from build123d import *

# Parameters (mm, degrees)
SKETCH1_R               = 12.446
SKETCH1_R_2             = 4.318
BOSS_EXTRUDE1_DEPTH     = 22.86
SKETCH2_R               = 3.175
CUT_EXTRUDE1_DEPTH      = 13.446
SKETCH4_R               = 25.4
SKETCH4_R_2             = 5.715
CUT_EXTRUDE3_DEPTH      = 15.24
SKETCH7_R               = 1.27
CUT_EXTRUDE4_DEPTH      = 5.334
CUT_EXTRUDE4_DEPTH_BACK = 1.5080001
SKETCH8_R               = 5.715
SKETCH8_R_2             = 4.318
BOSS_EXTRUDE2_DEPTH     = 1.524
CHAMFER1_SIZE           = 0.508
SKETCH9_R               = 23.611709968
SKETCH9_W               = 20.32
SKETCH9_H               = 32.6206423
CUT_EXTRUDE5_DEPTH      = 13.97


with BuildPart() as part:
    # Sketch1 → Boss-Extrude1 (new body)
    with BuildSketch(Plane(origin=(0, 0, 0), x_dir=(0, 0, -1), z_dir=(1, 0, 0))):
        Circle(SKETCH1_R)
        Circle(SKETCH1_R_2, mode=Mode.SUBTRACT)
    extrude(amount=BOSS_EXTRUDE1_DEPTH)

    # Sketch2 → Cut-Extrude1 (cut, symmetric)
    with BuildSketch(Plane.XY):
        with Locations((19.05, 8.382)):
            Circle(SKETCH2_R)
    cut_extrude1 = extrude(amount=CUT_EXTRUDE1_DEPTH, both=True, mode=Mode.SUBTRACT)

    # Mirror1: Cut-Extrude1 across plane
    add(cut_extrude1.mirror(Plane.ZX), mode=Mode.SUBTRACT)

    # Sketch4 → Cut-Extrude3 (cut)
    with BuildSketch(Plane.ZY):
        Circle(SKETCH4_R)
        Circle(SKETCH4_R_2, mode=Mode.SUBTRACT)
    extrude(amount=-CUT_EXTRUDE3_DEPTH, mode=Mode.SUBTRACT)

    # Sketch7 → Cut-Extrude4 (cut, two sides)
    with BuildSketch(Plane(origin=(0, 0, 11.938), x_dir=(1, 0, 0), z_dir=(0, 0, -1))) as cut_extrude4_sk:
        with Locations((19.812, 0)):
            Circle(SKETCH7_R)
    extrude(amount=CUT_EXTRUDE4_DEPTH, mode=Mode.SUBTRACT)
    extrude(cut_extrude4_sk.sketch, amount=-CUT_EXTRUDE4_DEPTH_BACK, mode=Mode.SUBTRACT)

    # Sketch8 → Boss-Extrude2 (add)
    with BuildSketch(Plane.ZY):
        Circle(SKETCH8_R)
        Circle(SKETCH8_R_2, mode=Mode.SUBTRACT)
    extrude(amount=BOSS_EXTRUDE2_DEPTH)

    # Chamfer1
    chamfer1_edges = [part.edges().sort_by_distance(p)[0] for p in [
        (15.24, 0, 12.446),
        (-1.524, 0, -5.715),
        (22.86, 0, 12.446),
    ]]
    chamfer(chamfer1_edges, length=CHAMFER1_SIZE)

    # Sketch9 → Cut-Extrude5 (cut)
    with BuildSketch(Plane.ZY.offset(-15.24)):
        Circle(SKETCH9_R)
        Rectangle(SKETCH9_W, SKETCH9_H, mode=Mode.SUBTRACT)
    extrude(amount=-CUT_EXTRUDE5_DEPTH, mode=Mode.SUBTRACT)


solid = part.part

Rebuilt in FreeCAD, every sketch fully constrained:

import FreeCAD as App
import Part
import Sketcher

V = App.Vector
Q = App.Units.Quantity


def edges_at(feature, points):
    """Names of the edges that pass closest to the given points."""
    edges = feature.Shape.Edges
    near = lambda p: min(range(len(edges)), key=lambda i: edges[i].distToShape(Part.Vertex(*p))[0])
    return sorted({f"Edge{near(p) + 1}" for p in points})

doc = App.newDocument("Part")
body = doc.addObject("PartDesign::Body", "Body")

sketch1 = doc.addObject("Sketcher::SketchObject", "Sketch")
body.addObject(sketch1)
sketch1.AttachmentSupport = (doc.YZ_Plane, [""])
sketch1.MapMode = "FlatFace"
sketch1.addGeometry([
    Part.Circle(V(0, 0, 0), V(0, 0, 1), 12.4),
    Part.Circle(V(0, 0, 0), V(0, 0, 1), 4.3),
], False)
sketch1.addConstraint([
    Sketcher.Constraint("Coincident", 0, 3, -1, 1),
    Sketcher.Constraint("Coincident", 1, 3, -1, 1),
    Sketcher.Constraint("Diameter", 0, Q("0.98 in")),
    Sketcher.Constraint("Diameter", 1, Q("0.34 in")),
])
pad1 = doc.addObject("PartDesign::Pad", "Pad")
body.addObject(pad1)
pad1.Profile = sketch1
pad1.Length = Q("0.9 in")

sketch2 = doc.addObject("Sketcher::SketchObject", "Sketch001")
body.addObject(sketch2)
sketch2.AttachmentSupport = (doc.XY_Plane, [""])
sketch2.MapMode = "FlatFace"
sketch2.addGeometry(Part.Circle(V(19.1, 8.4, 0), V(0, 0, 1), 3.2), False)
sketch2.addConstraint([
    Sketcher.Constraint("Diameter", 0, Q("0.25 in")),
    Sketcher.Constraint("DistanceX", -1, 1, 0, 3, Q("0.75 in")),
    Sketcher.Constraint("DistanceY", -1, 1, 0, 3, Q("0.33 in")),
])
pocket1 = doc.addObject("PartDesign::Pocket", "Pocket")
body.addObject(pocket1)
pocket1.Profile = sketch2
pocket1.Length = 26.892
pocket1.Midplane = True
doc.recompute()

mirrored = doc.addObject("PartDesign::Mirrored", "Mirrored")
body.addObject(mirrored)
mirrored.Originals = [pocket1]
mirrored.MirrorPlane = (doc.XZ_Plane, [""])
body.Tip = mirrored

sketch3 = doc.addObject("Sketcher::SketchObject", "Sketch002")
body.addObject(sketch3)
sketch3.AttachmentSupport = (doc.YZ_Plane, [""])
sketch3.MapMode = "FlatFace"
sketch3.addGeometry([
    Part.Circle(V(0, 0, 0), V(0, 0, 1), 25),
    Part.Circle(V(0, 0, 0), V(0, 0, 1), 6),
], False)
sketch3.addConstraint([
    Sketcher.Constraint("Coincident", 0, 3, -1, 1),
    Sketcher.Constraint("Coincident", 1, 3, -1, 1),
    Sketcher.Constraint("Diameter", 0, Q("2 in")),
    Sketcher.Constraint("Diameter", 1, Q("0.45 in")),
])
pocket2 = doc.addObject("PartDesign::Pocket", "Pocket001")
body.addObject(pocket2)
pocket2.Profile = sketch3
pocket2.Length = Q("0.6 in")
pocket2.Reversed = True

sketch4 = doc.addObject("Sketcher::SketchObject", "Sketch003")
body.addObject(sketch4)
sketch4.AttachmentSupport = (doc.XY_Plane, [""])
sketch4.MapMode = "FlatFace"
sketch4.AttachmentOffset = App.Placement(V(0, 0, 0.47 * 25.4), App.Rotation())
sketch4.addGeometry(Part.Circle(V(19.8, 0, 0), V(0, 0, 1), 1.3), False)
sketch4.addConstraint([
    Sketcher.Constraint("PointOnObject", 0, 3, -1),
    Sketcher.Constraint("Diameter", 0, Q("0.1 in")),
    Sketcher.Constraint("DistanceX", -1, 1, 0, 3, Q("0.78 in")),
])
pocket3 = doc.addObject("PartDesign::Pocket", "Pocket002")
body.addObject(pocket3)
pocket3.Profile = sketch4
pocket3.Type = "TwoLengths"
pocket3.Length = Q("0.21 in")
pocket3.Length2 = 1.508

sketch5 = doc.addObject("Sketcher::SketchObject", "Sketch004")
body.addObject(sketch5)
sketch5.AttachmentSupport = (doc.YZ_Plane, [""])
sketch5.MapMode = "FlatFace"
sketch5.addGeometry([
    Part.Circle(V(0, 0, 0), V(0, 0, 1), 5.7),
    Part.Circle(V(0, 0, 0), V(0, 0, 1), 4.3),
], False)
sketch5.addConstraint([
    Sketcher.Constraint("Coincident", 0, 3, -1, 1),
    Sketcher.Constraint("Coincident", 1, 3, -1, 1),
    Sketcher.Constraint("Diameter", 0, Q("0.45 in")),
    Sketcher.Constraint("Diameter", 1, Q("0.34 in")),
])
pad2 = doc.addObject("PartDesign::Pad", "Pad001")
body.addObject(pad2)
pad2.Profile = sketch5
pad2.Length = Q("0.06 in")
pad2.Reversed = True
doc.recompute()

chamfer = doc.addObject("PartDesign::Chamfer", "Chamfer")
body.addObject(chamfer)
chamfer.Base = (pad2, edges_at(pad2, [(15.24, 0, 12.446), (-1.524, 0, -5.715), (22.86, 0, 12.446)]))
chamfer.Size = Q("0.02 in")

sketch6 = doc.addObject("Sketcher::SketchObject", "Sketch005")
body.addObject(sketch6)
sketch6.AttachmentSupport = (doc.YZ_Plane, [""])
sketch6.MapMode = "FlatFace"
sketch6.AttachmentOffset = App.Placement(V(0, 0, 0.6 * 25.4), App.Rotation())
sketch6.addGeometry([
    Part.Circle(V(0, 0, 0), V(0, 0, 1), 24),
    Part.LineSegment(V(-16, 10, 0), V(-16, -10, 0)),
    Part.LineSegment(V(-16, -10, 0), V(16, -10, 0)),
    Part.LineSegment(V(16, -10, 0), V(16, 10, 0)),
    Part.LineSegment(V(16, 10, 0), V(-16, 10, 0)),
], False)
sketch6.addConstraint([
    Sketcher.Constraint("Coincident", 1, 2, 2, 1),
    Sketcher.Constraint("Coincident", 2, 2, 3, 1),
    Sketcher.Constraint("Coincident", 3, 2, 4, 1),
    Sketcher.Constraint("Coincident", 4, 2, 1, 1),
    Sketcher.Constraint("Vertical", 1),
    Sketcher.Constraint("Horizontal", 2),
    Sketcher.Constraint("Vertical", 3),
    Sketcher.Constraint("Horizontal", 4),
    Sketcher.Constraint("Coincident", 0, 3, -1, 1),
    Sketcher.Constraint("Symmetric", 1, 2, 3, 2, -1, 1),
    Sketcher.Constraint("DistanceY", 1, 2, 1, 1, Q("0.8 in")),
    Sketcher.Constraint("Diameter", 0, Q("47.22342 mm")),
    Sketcher.Constraint("DistanceX", 2, 1, 2, 2, Q("32.620642 mm")),
])
pocket4 = doc.addObject("PartDesign::Pocket", "Pocket003")
body.addObject(pocket4)
pocket4.Profile = sketch6
pocket4.Length = Q("0.55 in")
pocket4.Reversed = True

doc.recompute()
